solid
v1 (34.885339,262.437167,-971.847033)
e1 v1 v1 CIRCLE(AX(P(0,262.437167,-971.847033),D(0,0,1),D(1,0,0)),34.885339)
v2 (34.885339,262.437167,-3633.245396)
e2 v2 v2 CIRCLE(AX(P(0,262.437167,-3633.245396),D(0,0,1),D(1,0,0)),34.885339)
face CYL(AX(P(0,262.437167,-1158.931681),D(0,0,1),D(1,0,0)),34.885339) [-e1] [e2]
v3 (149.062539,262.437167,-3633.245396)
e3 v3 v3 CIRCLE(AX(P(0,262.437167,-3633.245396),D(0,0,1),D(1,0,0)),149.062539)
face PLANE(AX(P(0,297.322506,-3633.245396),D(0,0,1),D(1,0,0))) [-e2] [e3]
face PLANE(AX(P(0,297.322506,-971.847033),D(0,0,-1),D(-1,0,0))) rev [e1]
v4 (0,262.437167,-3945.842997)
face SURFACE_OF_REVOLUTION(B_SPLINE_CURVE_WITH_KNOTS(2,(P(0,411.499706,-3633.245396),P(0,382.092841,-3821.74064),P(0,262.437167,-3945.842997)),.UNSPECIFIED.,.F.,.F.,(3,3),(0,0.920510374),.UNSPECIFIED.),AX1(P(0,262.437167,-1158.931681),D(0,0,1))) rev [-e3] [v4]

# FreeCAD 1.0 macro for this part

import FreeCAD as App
import Part
import Sketcher

V = App.Vector
Q = App.Units.Quantity

doc = App.newDocument("Part")
body = doc.addObject("PartDesign::Body", "Body")

# Sketch on YZ plane
sketch1 = doc.addObject("Sketcher::SketchObject", "Sketch")
body.addObject(sketch1)
sketch1.AttachmentSupport = (doc.YZ_Plane, [""])
sketch1.MapMode = "FlatFace"
sketch1.addGeometry([
    Part.LineSegment(V(411.499706, -3633.245396, 0), V(297.322506, -3633.245396, 0)),  # 0
    Part.LineSegment(V(297.322506, -3633.245396, 0), V(297.322506, -971.847033, 0)),  # 1
    Part.LineSegment(V(297.322506, -971.847033, 0), V(262.437167, -971.847033, 0)),  # 2
    Part.LineSegment(V(262.437167, -971.847033, 0), V(262.437167, -3945.842997, 0)),  # 3
    Part.BSplineCurve([V(411.499706, -3633.245396, 0), V(382.092841, -3821.74064, 0), V(262.437167, -3945.842997, 0)], [3, 3], [0, 0.920510374], False, 2, [1, 1, 1], False),  # 4
], False)
sketch1.addGeometry(Part.LineSegment(V(262.437167, -971.847033, 0), V(262.437167, -3945.842997, 0)), True)  # axis
sketch1.addConstraint([
    Sketcher.Constraint("Block", 4),
    Sketcher.Constraint("Coincident", 0, 2, 1, 1),
    Sketcher.Constraint("Coincident", 1, 2, 2, 1),
    Sketcher.Constraint("Coincident", 2, 2, 3, 1),
    Sketcher.Constraint("Coincident", 3, 2, 4, 2),
    Sketcher.Constraint("Coincident", 4, 1, 0, 1),
    Sketcher.Constraint("Horizontal", 0),
    Sketcher.Constraint("Vertical", 1),
    Sketcher.Constraint("Horizontal", 2),
    Sketcher.Constraint("Vertical", 3),
    Sketcher.Constraint("Vertical", 5),
    Sketcher.Constraint("Coincident", 5, 1, 2, 2),
    Sketcher.Constraint("Equal", 3, 5),
    Sketcher.Constraint("DistanceX", 0, 2, 0, 1, Q("114.1772 mm")),
    Sketcher.Constraint("DistanceY", 1, 1, 1, 2, Q("2661.398363 mm")),
])
revolution = doc.addObject("PartDesign::Revolution", "Revolution")
body.addObject(revolution)
revolution.Profile = sketch1
revolution.ReferenceAxis = (sketch1, ["Axis0"])
revolution.Angle = 360

doc.recompute()
